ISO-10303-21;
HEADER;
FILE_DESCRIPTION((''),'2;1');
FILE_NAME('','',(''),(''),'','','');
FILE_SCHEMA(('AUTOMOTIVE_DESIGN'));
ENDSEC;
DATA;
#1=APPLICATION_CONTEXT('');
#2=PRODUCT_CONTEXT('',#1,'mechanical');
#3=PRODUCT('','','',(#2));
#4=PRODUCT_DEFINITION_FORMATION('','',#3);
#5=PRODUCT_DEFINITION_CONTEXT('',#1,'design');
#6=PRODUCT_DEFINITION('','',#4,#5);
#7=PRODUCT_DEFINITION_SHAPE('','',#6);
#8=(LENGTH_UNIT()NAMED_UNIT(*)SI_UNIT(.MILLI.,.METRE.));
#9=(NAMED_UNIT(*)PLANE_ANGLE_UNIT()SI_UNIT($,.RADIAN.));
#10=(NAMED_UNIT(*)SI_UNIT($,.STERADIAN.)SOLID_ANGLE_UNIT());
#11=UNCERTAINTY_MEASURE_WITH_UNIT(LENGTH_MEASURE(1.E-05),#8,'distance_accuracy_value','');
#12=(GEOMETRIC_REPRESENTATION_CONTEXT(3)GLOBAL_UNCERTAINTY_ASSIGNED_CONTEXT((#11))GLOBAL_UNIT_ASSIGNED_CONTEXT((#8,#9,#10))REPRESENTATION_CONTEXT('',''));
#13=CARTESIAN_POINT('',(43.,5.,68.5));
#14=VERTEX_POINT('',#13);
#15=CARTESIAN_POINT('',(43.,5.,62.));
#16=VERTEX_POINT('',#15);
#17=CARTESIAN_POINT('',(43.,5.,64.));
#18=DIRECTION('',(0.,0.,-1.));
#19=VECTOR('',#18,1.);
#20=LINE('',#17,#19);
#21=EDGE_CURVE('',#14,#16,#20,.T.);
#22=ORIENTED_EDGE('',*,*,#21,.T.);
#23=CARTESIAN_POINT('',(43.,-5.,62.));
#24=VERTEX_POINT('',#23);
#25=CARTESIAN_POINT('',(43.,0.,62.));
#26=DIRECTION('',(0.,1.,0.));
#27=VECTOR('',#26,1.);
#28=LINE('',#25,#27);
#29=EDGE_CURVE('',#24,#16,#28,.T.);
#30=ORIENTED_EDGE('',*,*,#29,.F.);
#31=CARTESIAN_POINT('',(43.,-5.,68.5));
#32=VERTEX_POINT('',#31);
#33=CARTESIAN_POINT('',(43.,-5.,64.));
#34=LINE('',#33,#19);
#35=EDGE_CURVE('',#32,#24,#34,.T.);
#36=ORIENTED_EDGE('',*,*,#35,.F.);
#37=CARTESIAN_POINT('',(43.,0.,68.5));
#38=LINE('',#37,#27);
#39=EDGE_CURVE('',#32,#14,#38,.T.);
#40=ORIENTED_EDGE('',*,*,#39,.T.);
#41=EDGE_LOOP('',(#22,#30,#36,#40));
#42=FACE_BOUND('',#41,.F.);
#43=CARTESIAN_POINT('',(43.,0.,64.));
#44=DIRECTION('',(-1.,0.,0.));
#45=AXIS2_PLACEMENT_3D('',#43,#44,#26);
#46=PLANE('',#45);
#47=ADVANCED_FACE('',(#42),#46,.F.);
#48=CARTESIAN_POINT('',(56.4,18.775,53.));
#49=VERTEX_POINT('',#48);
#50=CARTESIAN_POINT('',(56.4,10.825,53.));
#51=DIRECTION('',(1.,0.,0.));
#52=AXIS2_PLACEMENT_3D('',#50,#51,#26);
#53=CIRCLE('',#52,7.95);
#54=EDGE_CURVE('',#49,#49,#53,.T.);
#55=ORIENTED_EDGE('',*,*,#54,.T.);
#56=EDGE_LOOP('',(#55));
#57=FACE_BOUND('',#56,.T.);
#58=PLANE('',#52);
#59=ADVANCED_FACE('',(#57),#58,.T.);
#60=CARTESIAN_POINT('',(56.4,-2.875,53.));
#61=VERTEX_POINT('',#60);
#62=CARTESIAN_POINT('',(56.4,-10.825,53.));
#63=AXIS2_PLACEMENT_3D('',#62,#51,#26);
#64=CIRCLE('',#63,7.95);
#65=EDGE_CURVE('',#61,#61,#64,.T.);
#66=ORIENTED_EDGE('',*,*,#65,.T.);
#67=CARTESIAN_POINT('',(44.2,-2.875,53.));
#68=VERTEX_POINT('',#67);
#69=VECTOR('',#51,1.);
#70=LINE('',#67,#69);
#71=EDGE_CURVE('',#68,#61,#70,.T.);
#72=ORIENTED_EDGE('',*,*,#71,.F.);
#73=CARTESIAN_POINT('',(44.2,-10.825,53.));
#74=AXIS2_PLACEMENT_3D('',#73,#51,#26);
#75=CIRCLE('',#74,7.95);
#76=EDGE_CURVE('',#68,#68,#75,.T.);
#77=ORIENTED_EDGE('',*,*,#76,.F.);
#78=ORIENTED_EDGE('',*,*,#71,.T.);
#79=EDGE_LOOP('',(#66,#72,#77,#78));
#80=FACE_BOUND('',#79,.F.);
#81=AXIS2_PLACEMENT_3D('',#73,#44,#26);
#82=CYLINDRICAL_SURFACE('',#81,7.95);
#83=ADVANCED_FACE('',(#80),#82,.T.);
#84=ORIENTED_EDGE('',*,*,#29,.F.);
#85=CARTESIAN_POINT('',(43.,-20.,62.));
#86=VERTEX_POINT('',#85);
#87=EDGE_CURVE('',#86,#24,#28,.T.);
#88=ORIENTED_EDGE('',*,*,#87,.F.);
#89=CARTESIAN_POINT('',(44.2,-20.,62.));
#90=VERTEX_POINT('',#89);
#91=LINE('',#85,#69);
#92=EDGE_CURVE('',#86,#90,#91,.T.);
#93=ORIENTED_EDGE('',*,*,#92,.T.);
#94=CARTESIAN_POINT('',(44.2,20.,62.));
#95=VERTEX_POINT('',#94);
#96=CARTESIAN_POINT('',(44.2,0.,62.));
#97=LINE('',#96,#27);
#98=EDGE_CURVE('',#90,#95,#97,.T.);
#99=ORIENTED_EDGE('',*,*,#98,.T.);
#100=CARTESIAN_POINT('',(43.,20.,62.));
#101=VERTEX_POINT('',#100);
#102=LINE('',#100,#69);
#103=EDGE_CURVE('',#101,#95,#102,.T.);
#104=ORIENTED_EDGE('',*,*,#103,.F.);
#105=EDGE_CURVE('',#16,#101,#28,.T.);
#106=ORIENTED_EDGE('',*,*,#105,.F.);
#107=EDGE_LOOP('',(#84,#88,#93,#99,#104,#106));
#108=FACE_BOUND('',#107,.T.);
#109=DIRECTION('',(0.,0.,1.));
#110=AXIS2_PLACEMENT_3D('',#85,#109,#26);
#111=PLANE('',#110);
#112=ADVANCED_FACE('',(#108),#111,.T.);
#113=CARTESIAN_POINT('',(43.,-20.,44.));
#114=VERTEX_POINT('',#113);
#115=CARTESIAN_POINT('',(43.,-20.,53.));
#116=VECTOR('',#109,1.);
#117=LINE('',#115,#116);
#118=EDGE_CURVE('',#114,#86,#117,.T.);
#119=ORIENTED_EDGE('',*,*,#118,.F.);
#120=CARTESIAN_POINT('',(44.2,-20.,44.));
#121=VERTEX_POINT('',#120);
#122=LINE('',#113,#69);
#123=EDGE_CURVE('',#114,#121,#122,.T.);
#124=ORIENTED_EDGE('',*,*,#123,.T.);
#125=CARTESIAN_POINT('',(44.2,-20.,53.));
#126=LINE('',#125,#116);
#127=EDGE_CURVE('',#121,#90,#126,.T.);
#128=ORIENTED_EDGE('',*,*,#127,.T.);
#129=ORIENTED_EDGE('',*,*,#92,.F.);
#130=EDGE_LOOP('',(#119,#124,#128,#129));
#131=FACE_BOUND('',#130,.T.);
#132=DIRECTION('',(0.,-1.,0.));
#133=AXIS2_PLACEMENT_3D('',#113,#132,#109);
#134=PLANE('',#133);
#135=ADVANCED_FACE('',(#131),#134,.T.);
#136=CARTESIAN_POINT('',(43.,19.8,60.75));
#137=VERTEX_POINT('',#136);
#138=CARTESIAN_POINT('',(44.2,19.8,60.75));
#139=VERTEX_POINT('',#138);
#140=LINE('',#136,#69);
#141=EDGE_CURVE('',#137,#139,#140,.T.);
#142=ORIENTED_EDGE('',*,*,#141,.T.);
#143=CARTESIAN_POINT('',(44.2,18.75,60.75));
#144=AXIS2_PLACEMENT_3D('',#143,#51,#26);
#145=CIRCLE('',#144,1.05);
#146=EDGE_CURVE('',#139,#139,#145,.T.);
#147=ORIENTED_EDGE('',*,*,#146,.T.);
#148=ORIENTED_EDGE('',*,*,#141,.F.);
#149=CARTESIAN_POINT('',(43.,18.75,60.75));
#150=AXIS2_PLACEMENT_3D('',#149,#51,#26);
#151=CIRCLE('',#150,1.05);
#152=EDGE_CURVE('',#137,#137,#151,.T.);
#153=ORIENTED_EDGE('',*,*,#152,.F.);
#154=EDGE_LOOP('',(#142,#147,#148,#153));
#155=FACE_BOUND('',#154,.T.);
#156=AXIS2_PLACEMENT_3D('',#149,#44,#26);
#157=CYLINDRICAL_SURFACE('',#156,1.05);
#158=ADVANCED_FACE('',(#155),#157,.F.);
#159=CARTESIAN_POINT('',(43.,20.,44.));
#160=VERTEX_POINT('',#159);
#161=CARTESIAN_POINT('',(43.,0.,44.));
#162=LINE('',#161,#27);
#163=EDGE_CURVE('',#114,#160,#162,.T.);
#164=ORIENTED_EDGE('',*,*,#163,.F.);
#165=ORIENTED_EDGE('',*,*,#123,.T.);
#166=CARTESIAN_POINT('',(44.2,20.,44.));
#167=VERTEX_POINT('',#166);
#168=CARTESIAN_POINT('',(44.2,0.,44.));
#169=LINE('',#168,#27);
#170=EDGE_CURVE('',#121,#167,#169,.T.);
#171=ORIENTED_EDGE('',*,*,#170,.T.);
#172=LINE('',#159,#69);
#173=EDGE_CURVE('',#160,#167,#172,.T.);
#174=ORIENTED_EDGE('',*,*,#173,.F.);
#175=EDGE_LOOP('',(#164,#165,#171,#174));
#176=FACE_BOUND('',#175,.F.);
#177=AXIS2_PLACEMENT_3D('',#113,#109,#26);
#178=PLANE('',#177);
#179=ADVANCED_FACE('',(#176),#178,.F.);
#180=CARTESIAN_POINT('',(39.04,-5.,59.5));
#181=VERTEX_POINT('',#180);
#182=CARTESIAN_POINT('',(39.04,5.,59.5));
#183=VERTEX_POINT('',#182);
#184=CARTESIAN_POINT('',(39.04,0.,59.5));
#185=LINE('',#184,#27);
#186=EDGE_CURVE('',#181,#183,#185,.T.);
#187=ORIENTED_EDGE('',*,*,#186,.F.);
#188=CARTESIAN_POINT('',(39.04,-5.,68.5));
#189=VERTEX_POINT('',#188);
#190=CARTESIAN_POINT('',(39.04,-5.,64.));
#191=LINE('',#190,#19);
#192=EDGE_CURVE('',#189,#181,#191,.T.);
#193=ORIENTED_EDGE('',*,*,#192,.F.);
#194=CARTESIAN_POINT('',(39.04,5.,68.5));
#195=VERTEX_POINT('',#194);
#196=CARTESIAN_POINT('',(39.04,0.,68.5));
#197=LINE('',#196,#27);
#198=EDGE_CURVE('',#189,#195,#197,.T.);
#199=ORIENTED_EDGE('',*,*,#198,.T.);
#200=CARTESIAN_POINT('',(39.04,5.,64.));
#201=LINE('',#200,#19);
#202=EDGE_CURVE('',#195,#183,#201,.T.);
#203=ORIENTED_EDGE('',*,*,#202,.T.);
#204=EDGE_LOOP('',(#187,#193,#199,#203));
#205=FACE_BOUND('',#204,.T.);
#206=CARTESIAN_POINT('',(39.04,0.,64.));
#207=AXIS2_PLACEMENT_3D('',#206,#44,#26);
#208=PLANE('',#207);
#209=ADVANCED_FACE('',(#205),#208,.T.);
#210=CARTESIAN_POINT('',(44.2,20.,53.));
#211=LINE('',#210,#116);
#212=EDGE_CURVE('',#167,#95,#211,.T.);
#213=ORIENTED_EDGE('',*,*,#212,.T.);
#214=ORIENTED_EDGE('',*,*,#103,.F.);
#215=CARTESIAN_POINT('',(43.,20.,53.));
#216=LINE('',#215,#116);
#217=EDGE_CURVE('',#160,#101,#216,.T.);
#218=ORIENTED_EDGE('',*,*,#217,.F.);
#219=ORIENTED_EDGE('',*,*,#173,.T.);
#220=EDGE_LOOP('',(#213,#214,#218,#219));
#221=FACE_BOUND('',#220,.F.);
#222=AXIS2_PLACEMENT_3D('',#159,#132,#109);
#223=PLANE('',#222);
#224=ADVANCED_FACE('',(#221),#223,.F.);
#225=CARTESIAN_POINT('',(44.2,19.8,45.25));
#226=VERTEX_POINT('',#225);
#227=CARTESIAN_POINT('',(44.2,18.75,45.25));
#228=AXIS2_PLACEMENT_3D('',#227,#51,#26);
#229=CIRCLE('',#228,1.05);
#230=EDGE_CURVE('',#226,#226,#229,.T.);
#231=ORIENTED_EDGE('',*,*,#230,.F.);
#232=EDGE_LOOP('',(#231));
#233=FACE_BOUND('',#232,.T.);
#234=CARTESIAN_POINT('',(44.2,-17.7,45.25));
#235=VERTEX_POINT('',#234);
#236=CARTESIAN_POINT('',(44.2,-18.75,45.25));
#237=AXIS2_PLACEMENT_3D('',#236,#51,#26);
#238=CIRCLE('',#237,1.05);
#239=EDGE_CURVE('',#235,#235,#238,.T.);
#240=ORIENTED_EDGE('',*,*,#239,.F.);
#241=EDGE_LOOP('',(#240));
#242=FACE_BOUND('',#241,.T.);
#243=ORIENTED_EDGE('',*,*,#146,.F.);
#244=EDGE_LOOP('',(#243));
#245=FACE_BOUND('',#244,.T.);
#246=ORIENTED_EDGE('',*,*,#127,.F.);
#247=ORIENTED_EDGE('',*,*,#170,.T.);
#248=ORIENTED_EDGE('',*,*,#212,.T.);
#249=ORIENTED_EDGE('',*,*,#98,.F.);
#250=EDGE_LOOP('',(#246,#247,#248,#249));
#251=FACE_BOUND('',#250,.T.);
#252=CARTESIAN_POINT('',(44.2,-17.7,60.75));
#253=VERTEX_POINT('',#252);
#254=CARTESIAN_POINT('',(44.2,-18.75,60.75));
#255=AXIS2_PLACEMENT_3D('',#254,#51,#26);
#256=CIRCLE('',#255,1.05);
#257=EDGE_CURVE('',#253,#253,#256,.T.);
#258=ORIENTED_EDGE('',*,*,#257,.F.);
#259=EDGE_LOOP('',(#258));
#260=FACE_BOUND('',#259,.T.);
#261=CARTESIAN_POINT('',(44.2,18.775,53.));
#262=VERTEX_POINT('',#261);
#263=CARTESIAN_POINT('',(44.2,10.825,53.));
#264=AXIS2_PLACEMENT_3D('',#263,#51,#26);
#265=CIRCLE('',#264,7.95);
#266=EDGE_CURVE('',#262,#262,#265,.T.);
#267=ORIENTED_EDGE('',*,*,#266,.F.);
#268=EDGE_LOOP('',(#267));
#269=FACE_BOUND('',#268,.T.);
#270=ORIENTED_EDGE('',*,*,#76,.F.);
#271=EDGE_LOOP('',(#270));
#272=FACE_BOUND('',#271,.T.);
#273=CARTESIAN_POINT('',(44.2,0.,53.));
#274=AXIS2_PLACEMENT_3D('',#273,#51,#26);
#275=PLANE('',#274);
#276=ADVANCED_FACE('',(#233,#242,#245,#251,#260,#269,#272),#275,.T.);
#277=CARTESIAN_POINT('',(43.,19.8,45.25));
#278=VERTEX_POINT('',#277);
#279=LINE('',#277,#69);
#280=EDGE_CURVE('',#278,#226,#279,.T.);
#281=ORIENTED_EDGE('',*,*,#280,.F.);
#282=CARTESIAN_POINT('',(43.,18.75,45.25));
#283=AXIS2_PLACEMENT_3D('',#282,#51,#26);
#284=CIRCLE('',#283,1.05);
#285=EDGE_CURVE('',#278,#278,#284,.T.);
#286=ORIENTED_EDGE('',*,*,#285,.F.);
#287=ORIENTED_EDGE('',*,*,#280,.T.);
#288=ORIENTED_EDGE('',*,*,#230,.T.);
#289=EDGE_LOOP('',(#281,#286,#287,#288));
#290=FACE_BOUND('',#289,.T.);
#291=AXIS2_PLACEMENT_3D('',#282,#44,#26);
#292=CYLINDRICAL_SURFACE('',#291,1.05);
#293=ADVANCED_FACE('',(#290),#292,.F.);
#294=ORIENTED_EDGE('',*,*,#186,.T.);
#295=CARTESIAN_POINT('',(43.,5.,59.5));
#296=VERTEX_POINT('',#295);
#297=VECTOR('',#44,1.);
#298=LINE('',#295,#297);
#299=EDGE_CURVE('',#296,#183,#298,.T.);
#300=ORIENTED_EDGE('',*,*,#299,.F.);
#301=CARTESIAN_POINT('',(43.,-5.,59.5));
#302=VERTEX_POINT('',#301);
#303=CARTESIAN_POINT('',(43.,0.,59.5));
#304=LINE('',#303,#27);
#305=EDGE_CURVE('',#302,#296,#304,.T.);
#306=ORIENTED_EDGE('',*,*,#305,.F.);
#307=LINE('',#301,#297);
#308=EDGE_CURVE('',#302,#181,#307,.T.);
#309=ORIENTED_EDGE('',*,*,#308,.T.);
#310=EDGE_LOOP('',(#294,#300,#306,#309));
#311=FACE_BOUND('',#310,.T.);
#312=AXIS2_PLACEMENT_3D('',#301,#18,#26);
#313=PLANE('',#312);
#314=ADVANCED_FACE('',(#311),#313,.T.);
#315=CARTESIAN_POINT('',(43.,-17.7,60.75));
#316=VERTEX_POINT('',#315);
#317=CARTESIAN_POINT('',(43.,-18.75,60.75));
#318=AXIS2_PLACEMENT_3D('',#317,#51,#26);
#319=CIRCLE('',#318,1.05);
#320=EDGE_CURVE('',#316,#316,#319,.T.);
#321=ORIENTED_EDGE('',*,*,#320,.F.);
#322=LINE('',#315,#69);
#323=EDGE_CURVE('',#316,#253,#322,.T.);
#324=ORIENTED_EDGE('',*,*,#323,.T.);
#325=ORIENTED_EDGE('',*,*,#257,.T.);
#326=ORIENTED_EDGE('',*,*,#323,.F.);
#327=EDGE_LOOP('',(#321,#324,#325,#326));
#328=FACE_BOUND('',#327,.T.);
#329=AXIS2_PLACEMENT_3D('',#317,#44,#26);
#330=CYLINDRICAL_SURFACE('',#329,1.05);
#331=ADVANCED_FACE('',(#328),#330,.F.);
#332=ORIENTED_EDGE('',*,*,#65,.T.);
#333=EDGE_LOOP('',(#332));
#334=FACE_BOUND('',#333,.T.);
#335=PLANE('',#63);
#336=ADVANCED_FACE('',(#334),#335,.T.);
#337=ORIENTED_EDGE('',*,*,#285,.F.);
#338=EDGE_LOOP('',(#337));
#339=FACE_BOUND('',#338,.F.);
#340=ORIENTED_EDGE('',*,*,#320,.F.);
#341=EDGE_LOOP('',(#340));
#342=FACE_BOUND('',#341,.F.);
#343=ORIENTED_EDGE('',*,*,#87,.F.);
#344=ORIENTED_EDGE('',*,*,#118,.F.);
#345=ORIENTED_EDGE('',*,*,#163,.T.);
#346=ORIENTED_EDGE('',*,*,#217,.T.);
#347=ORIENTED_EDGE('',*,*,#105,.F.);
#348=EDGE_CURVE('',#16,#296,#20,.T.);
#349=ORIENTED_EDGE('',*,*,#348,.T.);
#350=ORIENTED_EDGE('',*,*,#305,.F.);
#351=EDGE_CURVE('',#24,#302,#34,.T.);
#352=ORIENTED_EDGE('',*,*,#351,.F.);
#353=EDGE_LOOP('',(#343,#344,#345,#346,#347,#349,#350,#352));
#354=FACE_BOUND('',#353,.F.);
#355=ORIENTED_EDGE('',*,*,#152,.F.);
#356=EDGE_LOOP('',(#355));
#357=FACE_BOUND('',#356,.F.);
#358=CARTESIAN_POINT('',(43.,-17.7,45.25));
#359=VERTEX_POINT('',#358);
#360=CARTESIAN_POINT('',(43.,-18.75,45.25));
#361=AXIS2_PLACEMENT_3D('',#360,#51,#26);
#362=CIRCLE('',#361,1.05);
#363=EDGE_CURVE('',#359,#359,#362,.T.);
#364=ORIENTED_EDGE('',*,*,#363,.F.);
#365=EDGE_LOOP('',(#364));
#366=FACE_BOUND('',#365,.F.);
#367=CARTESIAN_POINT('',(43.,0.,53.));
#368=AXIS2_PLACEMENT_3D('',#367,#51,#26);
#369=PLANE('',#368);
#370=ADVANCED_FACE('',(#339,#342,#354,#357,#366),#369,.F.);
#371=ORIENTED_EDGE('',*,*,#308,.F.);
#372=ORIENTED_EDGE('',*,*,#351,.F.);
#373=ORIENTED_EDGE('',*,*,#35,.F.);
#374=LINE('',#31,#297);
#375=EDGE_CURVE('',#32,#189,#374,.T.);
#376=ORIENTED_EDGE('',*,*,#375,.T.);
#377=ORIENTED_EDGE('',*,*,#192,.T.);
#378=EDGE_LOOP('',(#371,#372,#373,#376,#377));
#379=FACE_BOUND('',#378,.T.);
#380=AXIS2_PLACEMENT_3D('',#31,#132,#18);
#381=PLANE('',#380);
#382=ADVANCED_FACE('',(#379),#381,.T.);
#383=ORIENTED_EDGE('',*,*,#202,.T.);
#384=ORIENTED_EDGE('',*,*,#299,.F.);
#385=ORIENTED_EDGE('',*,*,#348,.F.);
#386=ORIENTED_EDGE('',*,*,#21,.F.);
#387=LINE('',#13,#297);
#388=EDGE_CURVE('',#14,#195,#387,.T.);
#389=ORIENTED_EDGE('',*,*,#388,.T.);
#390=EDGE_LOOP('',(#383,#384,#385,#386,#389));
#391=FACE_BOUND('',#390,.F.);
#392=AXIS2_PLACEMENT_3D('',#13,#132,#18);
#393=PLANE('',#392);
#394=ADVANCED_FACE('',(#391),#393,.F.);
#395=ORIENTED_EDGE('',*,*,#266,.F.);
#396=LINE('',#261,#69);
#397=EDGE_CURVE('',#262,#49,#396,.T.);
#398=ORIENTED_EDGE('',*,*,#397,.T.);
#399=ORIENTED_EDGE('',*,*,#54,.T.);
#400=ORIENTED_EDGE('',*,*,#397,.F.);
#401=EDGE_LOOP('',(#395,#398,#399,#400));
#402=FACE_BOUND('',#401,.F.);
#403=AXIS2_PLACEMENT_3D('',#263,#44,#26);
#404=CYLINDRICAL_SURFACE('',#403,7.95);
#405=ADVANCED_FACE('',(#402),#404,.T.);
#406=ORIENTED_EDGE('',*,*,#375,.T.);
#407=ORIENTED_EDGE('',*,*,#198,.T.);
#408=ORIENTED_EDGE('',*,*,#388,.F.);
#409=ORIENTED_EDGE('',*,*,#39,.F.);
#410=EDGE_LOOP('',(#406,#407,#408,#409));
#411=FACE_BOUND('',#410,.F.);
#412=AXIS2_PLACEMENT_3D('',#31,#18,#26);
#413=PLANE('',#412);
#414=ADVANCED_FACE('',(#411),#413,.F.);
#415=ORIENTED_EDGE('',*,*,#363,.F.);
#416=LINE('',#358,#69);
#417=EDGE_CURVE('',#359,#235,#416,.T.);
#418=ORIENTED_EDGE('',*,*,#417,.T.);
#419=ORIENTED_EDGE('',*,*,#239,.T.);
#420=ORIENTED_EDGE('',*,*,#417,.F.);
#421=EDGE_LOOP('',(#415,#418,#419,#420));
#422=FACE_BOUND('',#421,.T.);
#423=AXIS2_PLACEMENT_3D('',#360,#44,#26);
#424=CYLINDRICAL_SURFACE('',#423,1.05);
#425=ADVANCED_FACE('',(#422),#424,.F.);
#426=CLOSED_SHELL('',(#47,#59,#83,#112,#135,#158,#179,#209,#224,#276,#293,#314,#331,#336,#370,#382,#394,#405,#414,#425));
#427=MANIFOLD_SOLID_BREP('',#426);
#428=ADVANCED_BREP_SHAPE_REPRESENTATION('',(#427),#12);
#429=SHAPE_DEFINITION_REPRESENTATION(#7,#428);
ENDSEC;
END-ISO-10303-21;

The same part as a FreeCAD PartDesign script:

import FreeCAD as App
import Part
import Sketcher


def add_polygon(sketch, points):
    """Adds a closed chain of lines whose ends are joined by coincident constraints."""
    first, n = sketch.GeometryCount, len(points)
    for a, b in zip(points, points[1:] + points[:1]):
        sketch.addGeometry(Part.LineSegment(App.Vector(*a, 0), App.Vector(*b, 0)), False)
    for i in range(n):
        sketch.addConstraint(Sketcher.Constraint("Coincident", first + i, 2, first + (i + 1) % n, 1))

doc = App.newDocument("Part")
params = doc.addObject("Spreadsheet::Sheet", "Params")
for row, (alias, value) in enumerate([
    ("sketch1_diameter", "2.1 mm"),
    ("sketch1_width", "40 mm"),
    ("sketch1_height", "18 mm"),
    ("pad1_length", "1.2 mm"),
    ("sketch2_diameter", "15.9 mm"),
    ("pad2_length", "12.2 mm"),
    ("sketch3_width", "10 mm"),
    ("sketch3_height", "9 mm"),
    ("pad3_length", "3.96 mm"),
], start=1):
    params.set(f"A{row}", alias)
    params.set(f"B{row}", "=" + value)
    params.setAlias(f"B{row}", alias)

body = doc.addObject("PartDesign::Body", "Body")

# Sketch on XZ plane
sketch1 = doc.addObject("Sketcher::SketchObject", "Sketch")
body.addObject(sketch1)
sketch1.AttachmentSupport = (doc.XZ_Plane, [""])
sketch1.MapMode = "FlatFace"
add_polygon(sketch1, [(-20, 9), (-20, -9), (20, -9), (20, 9)])  # lines 0-3
sketch1.addGeometry(Part.Circle(App.Vector(-18.8, -7.8, 0), App.Vector(0, 0, 1), 1.1), False)  # 4
sketch1.addGeometry(Part.Circle(App.Vector(18.8, -7.8, 0), App.Vector(0, 0, 1), 1.1), False)  # 5
sketch1.addGeometry(Part.Circle(App.Vector(-18.8, 7.8, 0), App.Vector(0, 0, 1), 1.1), False)  # 6
sketch1.addGeometry(Part.Circle(App.Vector(18.8, 7.8, 0), App.Vector(0, 0, 1), 1.1), False)  # 7
sketch1.addConstraint([
    Sketcher.Constraint("Vertical", 0),
    Sketcher.Constraint("Horizontal", 1),
    Sketcher.Constraint("Vertical", 2),
    Sketcher.Constraint("Horizontal", 3),
    Sketcher.Constraint("Equal", 4, 5),
    Sketcher.Constraint("Equal", 5, 6),
    Sketcher.Constraint("Equal", 6, 7),
    Sketcher.Constraint("Symmetric", 5, 3, 6, 3, -1, 1),
    Sketcher.Constraint("Symmetric", 4, 3, 7, 3, -1, 1),
    Sketcher.Constraint("Symmetric", 0, 2, 2, 2, -1, 1),
    Sketcher.Constraint("Symmetric", 4, 3, 5, 3, -2),
    Sketcher.Constraint("Diameter", 4, 2.1),
    Sketcher.Constraint("DistanceX", 1, 1, 1, 2, 40.0),
    Sketcher.Constraint("DistanceY", 0, 2, 0, 1, 18.0),
    Sketcher.Constraint("DistanceX", 4, 3, 5, 3, 37.5),
    Sketcher.Constraint("DistanceY", 4, 3, 6, 3, 15.5),
])
sketch1.setExpression("Constraints[15]", "Params.sketch1_diameter")
sketch1.setExpression("Constraints[16]", "Params.sketch1_width")
sketch1.setExpression("Constraints[17]", "Params.sketch1_height")
pad1 = doc.addObject("PartDesign::Pad", "Pad")
body.addObject(pad1)
pad1.Profile = sketch1
pad1.setExpression("Length", "Params.pad1_length")

# Sketch on XZ plane
sketch2 = doc.addObject("Sketcher::SketchObject", "Sketch001")
body.addObject(sketch2)
sketch2.AttachmentSupport = (doc.XZ_Plane, [""])
sketch2.MapMode = "FlatFace"
sketch2.AttachmentOffset = App.Placement(App.Vector(0, 0, 1.2), App.Rotation())
sketch2.addGeometry([
    Part.Circle(App.Vector(-11, 0, 0), App.Vector(0, 0, 1), 8),
    Part.Circle(App.Vector(11, 0, 0), App.Vector(0, 0, 1), 8),
], False)
sketch2.addConstraint([
    Sketcher.Constraint("Equal", 0, 1),
    Sketcher.Constraint("Symmetric", 0, 3, 1, 3, -1, 1),
    Sketcher.Constraint("PointOnObject", 0, 3, -1),
    Sketcher.Constraint("Diameter", 0, 15.9),
    Sketcher.Constraint("DistanceX", 0, 3, 1, 3, 21.65),
])
sketch2.setExpression("Constraints[3]", "Params.sketch2_diameter")
pad2 = doc.addObject("PartDesign::Pad", "Pad001")
body.addObject(pad2)
pad2.Profile = sketch2
pad2.setExpression("Length", "Params.pad2_length")

# Sketch on XZ plane
sketch3 = doc.addObject("Sketcher::SketchObject", "Sketch002")
body.addObject(sketch3)
sketch3.AttachmentSupport = (doc.XZ_Plane, [""])
sketch3.MapMode = "FlatFace"
add_polygon(sketch3, [(-5, 6), (-5, 16), (5, 16), (5, 6)])  # lines 0-3
sketch3.addConstraint([
    Sketcher.Constraint("Vertical", 0),
    Sketcher.Constraint("Horizontal", 1),
    Sketcher.Constraint("Vertical", 2),
    Sketcher.Constraint("Horizontal", 3),
    Sketcher.Constraint("DistanceX", 1, 1, 1, 2, 10.0),
    Sketcher.Constraint("DistanceY", 0, 1, 0, 2, 9.0),
    Sketcher.Constraint("DistanceX", 0, 2, -1, 1, 5.0),
    Sketcher.Constraint("DistanceY", -1, 1, 0, 2, 15.5),
])
sketch3.setExpression("Constraints[8]", "Params.sketch3_width")
sketch3.setExpression("Constraints[9]", "Params.sketch3_height")
pad3 = doc.addObject("PartDesign::Pad", "Pad002")
body.addObject(pad3)
pad3.Profile = sketch3
pad3.setExpression("Length", "Params.pad3_length")
pad3.Reversed = True
body2 = doc.addObject("PartDesign::Body", "Body001")
doc.recompute()

body.Placement = App.Placement(App.Vector(43, 0, 53), App.Rotation(App.Vector(0, 0, 1), 90))
boolean = doc.addObject("PartDesign::Boolean", "Boolean")
body2.addObject(boolean)
boolean.Type = "Fuse"
boolean.addObjects([body])

doc.recompute()
